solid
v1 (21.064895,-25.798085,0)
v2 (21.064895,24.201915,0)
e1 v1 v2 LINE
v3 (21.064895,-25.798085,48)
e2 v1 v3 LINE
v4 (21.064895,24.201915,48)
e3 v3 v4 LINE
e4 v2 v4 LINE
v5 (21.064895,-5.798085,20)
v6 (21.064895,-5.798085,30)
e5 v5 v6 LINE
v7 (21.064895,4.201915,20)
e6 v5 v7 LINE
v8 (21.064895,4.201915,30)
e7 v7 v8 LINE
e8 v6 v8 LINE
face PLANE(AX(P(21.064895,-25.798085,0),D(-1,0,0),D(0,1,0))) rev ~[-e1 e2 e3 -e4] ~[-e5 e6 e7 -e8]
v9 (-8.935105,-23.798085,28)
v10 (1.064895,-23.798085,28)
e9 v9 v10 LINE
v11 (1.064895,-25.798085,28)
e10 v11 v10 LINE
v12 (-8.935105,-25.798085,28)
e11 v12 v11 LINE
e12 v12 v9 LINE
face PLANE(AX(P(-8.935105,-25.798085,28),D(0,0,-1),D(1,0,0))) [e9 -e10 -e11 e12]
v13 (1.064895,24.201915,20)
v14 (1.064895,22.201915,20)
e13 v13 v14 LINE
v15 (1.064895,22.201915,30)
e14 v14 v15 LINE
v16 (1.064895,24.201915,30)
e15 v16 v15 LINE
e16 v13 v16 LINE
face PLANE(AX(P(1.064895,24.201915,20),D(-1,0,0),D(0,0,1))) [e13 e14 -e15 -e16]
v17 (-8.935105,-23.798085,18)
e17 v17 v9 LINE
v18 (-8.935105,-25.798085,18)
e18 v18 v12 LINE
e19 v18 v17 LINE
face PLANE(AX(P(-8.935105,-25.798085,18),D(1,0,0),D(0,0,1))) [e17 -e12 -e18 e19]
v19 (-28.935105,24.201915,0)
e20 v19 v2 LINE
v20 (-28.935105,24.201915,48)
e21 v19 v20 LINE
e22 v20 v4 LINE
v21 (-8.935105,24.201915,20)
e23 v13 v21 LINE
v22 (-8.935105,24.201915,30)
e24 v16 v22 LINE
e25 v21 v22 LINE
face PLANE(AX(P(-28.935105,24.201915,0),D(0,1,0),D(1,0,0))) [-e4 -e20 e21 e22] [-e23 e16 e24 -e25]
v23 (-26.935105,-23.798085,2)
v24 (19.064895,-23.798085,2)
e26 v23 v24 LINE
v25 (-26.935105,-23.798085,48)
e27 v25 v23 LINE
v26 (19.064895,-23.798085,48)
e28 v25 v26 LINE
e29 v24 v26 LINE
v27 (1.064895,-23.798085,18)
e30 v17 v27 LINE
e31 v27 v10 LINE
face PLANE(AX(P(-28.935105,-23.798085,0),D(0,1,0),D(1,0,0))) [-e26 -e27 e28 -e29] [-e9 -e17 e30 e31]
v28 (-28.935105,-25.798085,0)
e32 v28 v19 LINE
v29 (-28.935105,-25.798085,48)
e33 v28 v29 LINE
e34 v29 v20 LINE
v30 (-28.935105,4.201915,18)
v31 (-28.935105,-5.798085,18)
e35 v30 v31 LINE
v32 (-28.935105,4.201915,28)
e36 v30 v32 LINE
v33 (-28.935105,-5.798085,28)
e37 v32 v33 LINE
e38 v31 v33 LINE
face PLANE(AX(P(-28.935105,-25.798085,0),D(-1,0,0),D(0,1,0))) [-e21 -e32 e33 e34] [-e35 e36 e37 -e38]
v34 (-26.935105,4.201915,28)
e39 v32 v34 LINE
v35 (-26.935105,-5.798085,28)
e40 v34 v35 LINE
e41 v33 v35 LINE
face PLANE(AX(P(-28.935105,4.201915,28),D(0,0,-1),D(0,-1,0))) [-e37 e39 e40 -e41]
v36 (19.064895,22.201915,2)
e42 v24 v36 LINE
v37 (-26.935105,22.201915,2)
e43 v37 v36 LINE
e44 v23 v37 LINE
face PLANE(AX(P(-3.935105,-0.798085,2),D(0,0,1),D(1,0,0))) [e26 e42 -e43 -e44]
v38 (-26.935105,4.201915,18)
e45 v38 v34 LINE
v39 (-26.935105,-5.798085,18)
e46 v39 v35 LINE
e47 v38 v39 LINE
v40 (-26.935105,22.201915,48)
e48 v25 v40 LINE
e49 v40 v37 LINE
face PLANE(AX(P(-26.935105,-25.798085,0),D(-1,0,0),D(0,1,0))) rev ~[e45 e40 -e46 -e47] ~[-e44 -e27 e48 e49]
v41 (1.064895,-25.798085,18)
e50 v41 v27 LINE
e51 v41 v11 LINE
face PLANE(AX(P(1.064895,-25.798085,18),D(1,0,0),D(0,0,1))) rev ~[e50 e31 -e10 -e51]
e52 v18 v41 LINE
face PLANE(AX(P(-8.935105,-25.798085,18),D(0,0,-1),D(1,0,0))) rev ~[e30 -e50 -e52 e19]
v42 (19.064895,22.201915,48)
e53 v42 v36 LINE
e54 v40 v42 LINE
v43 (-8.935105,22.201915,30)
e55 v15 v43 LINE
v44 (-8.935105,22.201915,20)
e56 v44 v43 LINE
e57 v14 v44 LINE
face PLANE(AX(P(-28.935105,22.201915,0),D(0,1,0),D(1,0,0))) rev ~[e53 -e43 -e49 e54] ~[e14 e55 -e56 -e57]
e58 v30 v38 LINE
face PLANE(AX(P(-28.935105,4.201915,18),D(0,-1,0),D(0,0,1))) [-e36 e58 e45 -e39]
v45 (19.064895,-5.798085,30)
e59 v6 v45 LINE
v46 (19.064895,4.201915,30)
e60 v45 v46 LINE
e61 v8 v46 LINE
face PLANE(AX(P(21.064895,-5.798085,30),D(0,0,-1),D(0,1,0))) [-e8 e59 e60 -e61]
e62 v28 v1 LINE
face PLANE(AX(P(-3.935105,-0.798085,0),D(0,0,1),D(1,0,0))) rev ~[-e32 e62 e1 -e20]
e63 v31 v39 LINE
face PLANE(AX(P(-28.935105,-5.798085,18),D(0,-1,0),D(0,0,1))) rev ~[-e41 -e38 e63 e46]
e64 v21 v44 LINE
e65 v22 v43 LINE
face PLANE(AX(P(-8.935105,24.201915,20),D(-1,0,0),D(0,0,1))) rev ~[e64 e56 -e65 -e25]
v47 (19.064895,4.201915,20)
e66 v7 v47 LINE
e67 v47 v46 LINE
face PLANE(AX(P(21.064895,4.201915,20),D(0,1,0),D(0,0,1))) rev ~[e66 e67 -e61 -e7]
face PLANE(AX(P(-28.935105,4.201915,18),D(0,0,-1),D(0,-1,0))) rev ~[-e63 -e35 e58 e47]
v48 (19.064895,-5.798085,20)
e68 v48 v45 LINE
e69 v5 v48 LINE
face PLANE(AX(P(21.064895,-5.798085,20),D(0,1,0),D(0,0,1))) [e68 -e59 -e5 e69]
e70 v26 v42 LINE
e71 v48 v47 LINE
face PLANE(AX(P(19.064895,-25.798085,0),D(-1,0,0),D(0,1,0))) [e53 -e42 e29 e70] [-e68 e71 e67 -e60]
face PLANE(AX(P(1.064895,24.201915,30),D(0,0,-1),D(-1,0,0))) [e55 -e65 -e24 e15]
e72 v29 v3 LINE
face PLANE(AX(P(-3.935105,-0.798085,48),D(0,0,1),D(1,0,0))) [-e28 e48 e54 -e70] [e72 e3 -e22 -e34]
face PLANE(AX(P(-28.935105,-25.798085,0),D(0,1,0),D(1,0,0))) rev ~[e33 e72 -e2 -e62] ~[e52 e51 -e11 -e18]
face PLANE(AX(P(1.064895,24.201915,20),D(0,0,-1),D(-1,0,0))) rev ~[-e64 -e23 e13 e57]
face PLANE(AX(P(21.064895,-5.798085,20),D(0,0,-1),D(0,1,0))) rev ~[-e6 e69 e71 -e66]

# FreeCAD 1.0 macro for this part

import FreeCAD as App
import Part
import Sketcher
from FreeCAD import Vector


def faces_at(feature, points):
    """Names of the faces that lie closest to the given points."""
    faces = feature.Shape.Faces
    near = lambda p: min(range(len(faces)), key=lambda i: faces[i].distToShape(Part.Vertex(*p))[0])
    return sorted({f"Face{near(p) + 1}" for p in points})


def add_polygon(sketch, points):
    """Adds a closed chain of lines whose ends are joined by coincident constraints."""
    first, n = sketch.GeometryCount, len(points)
    for a, b in zip(points, points[1:] + points[:1]):
        sketch.addGeometry(Part.LineSegment(App.Vector(*a, 0), App.Vector(*b, 0)), False)
    for i in range(n):
        sketch.addConstraint(Sketcher.Constraint("Coincident", first + i, 2, first + (i + 1) % n, 1))

doc = App.newDocument("Part")
body = doc.addObject("PartDesign::Body", "Body")

# Sketch on XY plane
sketch1 = body.newObject("Sketcher::SketchObject", "Sketch")
sketch1.AttachmentSupport = (doc.getObject("XY_Plane"), [""])
sketch1.MapMode = "FlatFace"
add_polygon(sketch1, [(-29, 24), (-29, -26), (21, -26), (21, 24)])  # lines 0-3
sketch1.addConstraint(Sketcher.Constraint("Vertical", 0))
sketch1.addConstraint(Sketcher.Constraint("Horizontal", 1))
sketch1.addConstraint(Sketcher.Constraint("Vertical", 2))
sketch1.addConstraint(Sketcher.Constraint("Horizontal", 3))
sketch1.addConstraint(Sketcher.Constraint("Equal", 3, 0))
sketch1.addConstraint(Sketcher.Constraint("DistanceX", 1, 1, 1, 2, 50.0))
sketch1.addConstraint(Sketcher.Constraint("DistanceX", 0, 2, -1, 1, 28.935105))
sketch1.addConstraint(Sketcher.Constraint("DistanceY", 0, 2, -1, 1, 25.798085))
pad1 = body.newObject("PartDesign::Pad", "Pad")
pad1.Profile = sketch1
pad1.Length = 48
doc.recompute()

thickness = body.newObject("PartDesign::Thickness", "Thickness")
thickness.Base = (pad1, faces_at(pad1, [(-3.935, -0.798, 48)]))
thickness.Value = 2
thickness.Reversed = True
thickness.Join = "Arc"

# Sketch on XZ plane
sketch2 = body.newObject("Sketcher::SketchObject", "Sketch001")
sketch2.AttachmentSupport = (doc.getObject("XZ_Plane"), [""])
sketch2.MapMode = "FlatFace"
sketch2.AttachmentOffset = App.Placement(Vector(0, 0, 25.798085), App.Rotation())
add_polygon(sketch2, [(-9, 28), (-9, 18), (1, 18), (1, 28)])  # lines 0-3
sketch2.addConstraint(Sketcher.Constraint("Vertical", 0))
sketch2.addConstraint(Sketcher.Constraint("Horizontal", 1))
sketch2.addConstraint(Sketcher.Constraint("Vertical", 2))
sketch2.addConstraint(Sketcher.Constraint("Horizontal", 3))
sketch2.addConstraint(Sketcher.Constraint("Equal", 3, 0))
sketch2.addConstraint(Sketcher.Constraint("DistanceX", 1, 1, 1, 2, 10.0))
sketch2.addConstraint(Sketcher.Constraint("DistanceY", -1, 1, 0, 2, 18.0))
sketch2.addConstraint(Sketcher.Constraint("DistanceX", 0, 2, -1, 1, 8.935105))
pocket1 = body.newObject("PartDesign::Pocket", "Pocket")
pocket1.Profile = sketch2
pocket1.Length = 2

# Sketch on YZ plane
sketch3 = body.newObject("Sketcher::SketchObject", "Sketch002")
sketch3.AttachmentSupport = (doc.getObject("YZ_Plane"), [""])
sketch3.MapMode = "FlatFace"
sketch3.AttachmentOffset = App.Placement(Vector(0, 0, 21.064895), App.Rotation())
add_polygon(sketch3, [(-6, 30), (-6, 20), (4, 20), (4, 30)])  # lines 0-3
sketch3.addConstraint(Sketcher.Constraint("Vertical", 0))
sketch3.addConstraint(Sketcher.Constraint("Horizontal", 1))
sketch3.addConstraint(Sketcher.Constraint("Vertical", 2))
sketch3.addConstraint(Sketcher.Constraint("Horizontal", 3))
sketch3.addConstraint(Sketcher.Constraint("Equal", 3, 0))
sketch3.addConstraint(Sketcher.Constraint("DistanceX", 1, 1, 1, 2, 10.0))
sketch3.addConstraint(Sketcher.Constraint("DistanceY", -1, 1, 0, 2, 20.0))
sketch3.addConstraint(Sketcher.Constraint("DistanceX", 0, 2, -1, 1, 5.798085))
pocket2 = body.newObject("PartDesign::Pocket", "Pocket001")
pocket2.Profile = sketch3
pocket2.Length = 2

# Sketch on YZ plane
sketch4 = body.newObject("Sketcher::SketchObject", "Sketch003")
sketch4.AttachmentSupport = (doc.getObject("YZ_Plane"), [""])
sketch4.MapMode = "FlatFace"
sketch4.AttachmentOffset = App.Placement(Vector(0, 0, -28.935105), App.Rotation())
add_polygon(sketch4, [(4, 28), (4, 18), (-6, 18), (-6, 28)])  # lines 0-3
sketch4.addConstraint(Sketcher.Constraint("Vertical", 0))
sketch4.addConstraint(Sketcher.Constraint("Horizontal", 1))
sketch4.addConstraint(Sketcher.Constraint("Vertical", 2))
sketch4.addConstraint(Sketcher.Constraint("Horizontal", 3))
sketch4.addConstraint(Sketcher.Constraint("Equal", 3, 0))
sketch4.addConstraint(Sketcher.Constraint("DistanceX", 1, 2, 1, 1, 10.0))
sketch4.addConstraint(Sketcher.Constraint("DistanceY", -1, 1, 0, 2, 18.0))
sketch4.addConstraint(Sketcher.Constraint("DistanceX", -1, 1, 0, 2, 4.201915))
pocket3 = body.newObject("PartDesign::Pocket", "Pocket002")
pocket3.Profile = sketch4
pocket3.Length = 2
pocket3.Reversed = True

# Sketch on XZ plane
sketch5 = body.newObject("Sketcher::SketchObject", "Sketch004")
sketch5.AttachmentSupport = (doc.getObject("XZ_Plane"), [""])
sketch5.MapMode = "FlatFace"
sketch5.AttachmentOffset = App.Placement(Vector(0, 0, -24.201915), App.Rotation())
add_polygon(sketch5, [(1, 30), (1, 20), (-9, 20), (-9, 30)])  # lines 0-3
sketch5.addConstraint(Sketcher.Constraint("Vertical", 0))
sketch5.addConstraint(Sketcher.Constraint("Horizontal", 1))
sketch5.addConstraint(Sketcher.Constraint("Vertical", 2))
sketch5.addConstraint(Sketcher.Constraint("Horizontal", 3))
sketch5.addConstraint(Sketcher.Constraint("Equal", 3, 0))
sketch5.addConstraint(Sketcher.Constraint("DistanceX", 1, 2, 1, 1, 10.0))
sketch5.addConstraint(Sketcher.Constraint("DistanceY", -1, 1, 0, 2, 20.0))
sketch5.addConstraint(Sketcher.Constraint("DistanceX", -1, 1, 0, 2, 1.064895))
pocket4 = body.newObject("PartDesign::Pocket", "Pocket003")
pocket4.Profile = sketch5
pocket4.Length = 2
pocket4.Reversed = True

doc.recompute()
